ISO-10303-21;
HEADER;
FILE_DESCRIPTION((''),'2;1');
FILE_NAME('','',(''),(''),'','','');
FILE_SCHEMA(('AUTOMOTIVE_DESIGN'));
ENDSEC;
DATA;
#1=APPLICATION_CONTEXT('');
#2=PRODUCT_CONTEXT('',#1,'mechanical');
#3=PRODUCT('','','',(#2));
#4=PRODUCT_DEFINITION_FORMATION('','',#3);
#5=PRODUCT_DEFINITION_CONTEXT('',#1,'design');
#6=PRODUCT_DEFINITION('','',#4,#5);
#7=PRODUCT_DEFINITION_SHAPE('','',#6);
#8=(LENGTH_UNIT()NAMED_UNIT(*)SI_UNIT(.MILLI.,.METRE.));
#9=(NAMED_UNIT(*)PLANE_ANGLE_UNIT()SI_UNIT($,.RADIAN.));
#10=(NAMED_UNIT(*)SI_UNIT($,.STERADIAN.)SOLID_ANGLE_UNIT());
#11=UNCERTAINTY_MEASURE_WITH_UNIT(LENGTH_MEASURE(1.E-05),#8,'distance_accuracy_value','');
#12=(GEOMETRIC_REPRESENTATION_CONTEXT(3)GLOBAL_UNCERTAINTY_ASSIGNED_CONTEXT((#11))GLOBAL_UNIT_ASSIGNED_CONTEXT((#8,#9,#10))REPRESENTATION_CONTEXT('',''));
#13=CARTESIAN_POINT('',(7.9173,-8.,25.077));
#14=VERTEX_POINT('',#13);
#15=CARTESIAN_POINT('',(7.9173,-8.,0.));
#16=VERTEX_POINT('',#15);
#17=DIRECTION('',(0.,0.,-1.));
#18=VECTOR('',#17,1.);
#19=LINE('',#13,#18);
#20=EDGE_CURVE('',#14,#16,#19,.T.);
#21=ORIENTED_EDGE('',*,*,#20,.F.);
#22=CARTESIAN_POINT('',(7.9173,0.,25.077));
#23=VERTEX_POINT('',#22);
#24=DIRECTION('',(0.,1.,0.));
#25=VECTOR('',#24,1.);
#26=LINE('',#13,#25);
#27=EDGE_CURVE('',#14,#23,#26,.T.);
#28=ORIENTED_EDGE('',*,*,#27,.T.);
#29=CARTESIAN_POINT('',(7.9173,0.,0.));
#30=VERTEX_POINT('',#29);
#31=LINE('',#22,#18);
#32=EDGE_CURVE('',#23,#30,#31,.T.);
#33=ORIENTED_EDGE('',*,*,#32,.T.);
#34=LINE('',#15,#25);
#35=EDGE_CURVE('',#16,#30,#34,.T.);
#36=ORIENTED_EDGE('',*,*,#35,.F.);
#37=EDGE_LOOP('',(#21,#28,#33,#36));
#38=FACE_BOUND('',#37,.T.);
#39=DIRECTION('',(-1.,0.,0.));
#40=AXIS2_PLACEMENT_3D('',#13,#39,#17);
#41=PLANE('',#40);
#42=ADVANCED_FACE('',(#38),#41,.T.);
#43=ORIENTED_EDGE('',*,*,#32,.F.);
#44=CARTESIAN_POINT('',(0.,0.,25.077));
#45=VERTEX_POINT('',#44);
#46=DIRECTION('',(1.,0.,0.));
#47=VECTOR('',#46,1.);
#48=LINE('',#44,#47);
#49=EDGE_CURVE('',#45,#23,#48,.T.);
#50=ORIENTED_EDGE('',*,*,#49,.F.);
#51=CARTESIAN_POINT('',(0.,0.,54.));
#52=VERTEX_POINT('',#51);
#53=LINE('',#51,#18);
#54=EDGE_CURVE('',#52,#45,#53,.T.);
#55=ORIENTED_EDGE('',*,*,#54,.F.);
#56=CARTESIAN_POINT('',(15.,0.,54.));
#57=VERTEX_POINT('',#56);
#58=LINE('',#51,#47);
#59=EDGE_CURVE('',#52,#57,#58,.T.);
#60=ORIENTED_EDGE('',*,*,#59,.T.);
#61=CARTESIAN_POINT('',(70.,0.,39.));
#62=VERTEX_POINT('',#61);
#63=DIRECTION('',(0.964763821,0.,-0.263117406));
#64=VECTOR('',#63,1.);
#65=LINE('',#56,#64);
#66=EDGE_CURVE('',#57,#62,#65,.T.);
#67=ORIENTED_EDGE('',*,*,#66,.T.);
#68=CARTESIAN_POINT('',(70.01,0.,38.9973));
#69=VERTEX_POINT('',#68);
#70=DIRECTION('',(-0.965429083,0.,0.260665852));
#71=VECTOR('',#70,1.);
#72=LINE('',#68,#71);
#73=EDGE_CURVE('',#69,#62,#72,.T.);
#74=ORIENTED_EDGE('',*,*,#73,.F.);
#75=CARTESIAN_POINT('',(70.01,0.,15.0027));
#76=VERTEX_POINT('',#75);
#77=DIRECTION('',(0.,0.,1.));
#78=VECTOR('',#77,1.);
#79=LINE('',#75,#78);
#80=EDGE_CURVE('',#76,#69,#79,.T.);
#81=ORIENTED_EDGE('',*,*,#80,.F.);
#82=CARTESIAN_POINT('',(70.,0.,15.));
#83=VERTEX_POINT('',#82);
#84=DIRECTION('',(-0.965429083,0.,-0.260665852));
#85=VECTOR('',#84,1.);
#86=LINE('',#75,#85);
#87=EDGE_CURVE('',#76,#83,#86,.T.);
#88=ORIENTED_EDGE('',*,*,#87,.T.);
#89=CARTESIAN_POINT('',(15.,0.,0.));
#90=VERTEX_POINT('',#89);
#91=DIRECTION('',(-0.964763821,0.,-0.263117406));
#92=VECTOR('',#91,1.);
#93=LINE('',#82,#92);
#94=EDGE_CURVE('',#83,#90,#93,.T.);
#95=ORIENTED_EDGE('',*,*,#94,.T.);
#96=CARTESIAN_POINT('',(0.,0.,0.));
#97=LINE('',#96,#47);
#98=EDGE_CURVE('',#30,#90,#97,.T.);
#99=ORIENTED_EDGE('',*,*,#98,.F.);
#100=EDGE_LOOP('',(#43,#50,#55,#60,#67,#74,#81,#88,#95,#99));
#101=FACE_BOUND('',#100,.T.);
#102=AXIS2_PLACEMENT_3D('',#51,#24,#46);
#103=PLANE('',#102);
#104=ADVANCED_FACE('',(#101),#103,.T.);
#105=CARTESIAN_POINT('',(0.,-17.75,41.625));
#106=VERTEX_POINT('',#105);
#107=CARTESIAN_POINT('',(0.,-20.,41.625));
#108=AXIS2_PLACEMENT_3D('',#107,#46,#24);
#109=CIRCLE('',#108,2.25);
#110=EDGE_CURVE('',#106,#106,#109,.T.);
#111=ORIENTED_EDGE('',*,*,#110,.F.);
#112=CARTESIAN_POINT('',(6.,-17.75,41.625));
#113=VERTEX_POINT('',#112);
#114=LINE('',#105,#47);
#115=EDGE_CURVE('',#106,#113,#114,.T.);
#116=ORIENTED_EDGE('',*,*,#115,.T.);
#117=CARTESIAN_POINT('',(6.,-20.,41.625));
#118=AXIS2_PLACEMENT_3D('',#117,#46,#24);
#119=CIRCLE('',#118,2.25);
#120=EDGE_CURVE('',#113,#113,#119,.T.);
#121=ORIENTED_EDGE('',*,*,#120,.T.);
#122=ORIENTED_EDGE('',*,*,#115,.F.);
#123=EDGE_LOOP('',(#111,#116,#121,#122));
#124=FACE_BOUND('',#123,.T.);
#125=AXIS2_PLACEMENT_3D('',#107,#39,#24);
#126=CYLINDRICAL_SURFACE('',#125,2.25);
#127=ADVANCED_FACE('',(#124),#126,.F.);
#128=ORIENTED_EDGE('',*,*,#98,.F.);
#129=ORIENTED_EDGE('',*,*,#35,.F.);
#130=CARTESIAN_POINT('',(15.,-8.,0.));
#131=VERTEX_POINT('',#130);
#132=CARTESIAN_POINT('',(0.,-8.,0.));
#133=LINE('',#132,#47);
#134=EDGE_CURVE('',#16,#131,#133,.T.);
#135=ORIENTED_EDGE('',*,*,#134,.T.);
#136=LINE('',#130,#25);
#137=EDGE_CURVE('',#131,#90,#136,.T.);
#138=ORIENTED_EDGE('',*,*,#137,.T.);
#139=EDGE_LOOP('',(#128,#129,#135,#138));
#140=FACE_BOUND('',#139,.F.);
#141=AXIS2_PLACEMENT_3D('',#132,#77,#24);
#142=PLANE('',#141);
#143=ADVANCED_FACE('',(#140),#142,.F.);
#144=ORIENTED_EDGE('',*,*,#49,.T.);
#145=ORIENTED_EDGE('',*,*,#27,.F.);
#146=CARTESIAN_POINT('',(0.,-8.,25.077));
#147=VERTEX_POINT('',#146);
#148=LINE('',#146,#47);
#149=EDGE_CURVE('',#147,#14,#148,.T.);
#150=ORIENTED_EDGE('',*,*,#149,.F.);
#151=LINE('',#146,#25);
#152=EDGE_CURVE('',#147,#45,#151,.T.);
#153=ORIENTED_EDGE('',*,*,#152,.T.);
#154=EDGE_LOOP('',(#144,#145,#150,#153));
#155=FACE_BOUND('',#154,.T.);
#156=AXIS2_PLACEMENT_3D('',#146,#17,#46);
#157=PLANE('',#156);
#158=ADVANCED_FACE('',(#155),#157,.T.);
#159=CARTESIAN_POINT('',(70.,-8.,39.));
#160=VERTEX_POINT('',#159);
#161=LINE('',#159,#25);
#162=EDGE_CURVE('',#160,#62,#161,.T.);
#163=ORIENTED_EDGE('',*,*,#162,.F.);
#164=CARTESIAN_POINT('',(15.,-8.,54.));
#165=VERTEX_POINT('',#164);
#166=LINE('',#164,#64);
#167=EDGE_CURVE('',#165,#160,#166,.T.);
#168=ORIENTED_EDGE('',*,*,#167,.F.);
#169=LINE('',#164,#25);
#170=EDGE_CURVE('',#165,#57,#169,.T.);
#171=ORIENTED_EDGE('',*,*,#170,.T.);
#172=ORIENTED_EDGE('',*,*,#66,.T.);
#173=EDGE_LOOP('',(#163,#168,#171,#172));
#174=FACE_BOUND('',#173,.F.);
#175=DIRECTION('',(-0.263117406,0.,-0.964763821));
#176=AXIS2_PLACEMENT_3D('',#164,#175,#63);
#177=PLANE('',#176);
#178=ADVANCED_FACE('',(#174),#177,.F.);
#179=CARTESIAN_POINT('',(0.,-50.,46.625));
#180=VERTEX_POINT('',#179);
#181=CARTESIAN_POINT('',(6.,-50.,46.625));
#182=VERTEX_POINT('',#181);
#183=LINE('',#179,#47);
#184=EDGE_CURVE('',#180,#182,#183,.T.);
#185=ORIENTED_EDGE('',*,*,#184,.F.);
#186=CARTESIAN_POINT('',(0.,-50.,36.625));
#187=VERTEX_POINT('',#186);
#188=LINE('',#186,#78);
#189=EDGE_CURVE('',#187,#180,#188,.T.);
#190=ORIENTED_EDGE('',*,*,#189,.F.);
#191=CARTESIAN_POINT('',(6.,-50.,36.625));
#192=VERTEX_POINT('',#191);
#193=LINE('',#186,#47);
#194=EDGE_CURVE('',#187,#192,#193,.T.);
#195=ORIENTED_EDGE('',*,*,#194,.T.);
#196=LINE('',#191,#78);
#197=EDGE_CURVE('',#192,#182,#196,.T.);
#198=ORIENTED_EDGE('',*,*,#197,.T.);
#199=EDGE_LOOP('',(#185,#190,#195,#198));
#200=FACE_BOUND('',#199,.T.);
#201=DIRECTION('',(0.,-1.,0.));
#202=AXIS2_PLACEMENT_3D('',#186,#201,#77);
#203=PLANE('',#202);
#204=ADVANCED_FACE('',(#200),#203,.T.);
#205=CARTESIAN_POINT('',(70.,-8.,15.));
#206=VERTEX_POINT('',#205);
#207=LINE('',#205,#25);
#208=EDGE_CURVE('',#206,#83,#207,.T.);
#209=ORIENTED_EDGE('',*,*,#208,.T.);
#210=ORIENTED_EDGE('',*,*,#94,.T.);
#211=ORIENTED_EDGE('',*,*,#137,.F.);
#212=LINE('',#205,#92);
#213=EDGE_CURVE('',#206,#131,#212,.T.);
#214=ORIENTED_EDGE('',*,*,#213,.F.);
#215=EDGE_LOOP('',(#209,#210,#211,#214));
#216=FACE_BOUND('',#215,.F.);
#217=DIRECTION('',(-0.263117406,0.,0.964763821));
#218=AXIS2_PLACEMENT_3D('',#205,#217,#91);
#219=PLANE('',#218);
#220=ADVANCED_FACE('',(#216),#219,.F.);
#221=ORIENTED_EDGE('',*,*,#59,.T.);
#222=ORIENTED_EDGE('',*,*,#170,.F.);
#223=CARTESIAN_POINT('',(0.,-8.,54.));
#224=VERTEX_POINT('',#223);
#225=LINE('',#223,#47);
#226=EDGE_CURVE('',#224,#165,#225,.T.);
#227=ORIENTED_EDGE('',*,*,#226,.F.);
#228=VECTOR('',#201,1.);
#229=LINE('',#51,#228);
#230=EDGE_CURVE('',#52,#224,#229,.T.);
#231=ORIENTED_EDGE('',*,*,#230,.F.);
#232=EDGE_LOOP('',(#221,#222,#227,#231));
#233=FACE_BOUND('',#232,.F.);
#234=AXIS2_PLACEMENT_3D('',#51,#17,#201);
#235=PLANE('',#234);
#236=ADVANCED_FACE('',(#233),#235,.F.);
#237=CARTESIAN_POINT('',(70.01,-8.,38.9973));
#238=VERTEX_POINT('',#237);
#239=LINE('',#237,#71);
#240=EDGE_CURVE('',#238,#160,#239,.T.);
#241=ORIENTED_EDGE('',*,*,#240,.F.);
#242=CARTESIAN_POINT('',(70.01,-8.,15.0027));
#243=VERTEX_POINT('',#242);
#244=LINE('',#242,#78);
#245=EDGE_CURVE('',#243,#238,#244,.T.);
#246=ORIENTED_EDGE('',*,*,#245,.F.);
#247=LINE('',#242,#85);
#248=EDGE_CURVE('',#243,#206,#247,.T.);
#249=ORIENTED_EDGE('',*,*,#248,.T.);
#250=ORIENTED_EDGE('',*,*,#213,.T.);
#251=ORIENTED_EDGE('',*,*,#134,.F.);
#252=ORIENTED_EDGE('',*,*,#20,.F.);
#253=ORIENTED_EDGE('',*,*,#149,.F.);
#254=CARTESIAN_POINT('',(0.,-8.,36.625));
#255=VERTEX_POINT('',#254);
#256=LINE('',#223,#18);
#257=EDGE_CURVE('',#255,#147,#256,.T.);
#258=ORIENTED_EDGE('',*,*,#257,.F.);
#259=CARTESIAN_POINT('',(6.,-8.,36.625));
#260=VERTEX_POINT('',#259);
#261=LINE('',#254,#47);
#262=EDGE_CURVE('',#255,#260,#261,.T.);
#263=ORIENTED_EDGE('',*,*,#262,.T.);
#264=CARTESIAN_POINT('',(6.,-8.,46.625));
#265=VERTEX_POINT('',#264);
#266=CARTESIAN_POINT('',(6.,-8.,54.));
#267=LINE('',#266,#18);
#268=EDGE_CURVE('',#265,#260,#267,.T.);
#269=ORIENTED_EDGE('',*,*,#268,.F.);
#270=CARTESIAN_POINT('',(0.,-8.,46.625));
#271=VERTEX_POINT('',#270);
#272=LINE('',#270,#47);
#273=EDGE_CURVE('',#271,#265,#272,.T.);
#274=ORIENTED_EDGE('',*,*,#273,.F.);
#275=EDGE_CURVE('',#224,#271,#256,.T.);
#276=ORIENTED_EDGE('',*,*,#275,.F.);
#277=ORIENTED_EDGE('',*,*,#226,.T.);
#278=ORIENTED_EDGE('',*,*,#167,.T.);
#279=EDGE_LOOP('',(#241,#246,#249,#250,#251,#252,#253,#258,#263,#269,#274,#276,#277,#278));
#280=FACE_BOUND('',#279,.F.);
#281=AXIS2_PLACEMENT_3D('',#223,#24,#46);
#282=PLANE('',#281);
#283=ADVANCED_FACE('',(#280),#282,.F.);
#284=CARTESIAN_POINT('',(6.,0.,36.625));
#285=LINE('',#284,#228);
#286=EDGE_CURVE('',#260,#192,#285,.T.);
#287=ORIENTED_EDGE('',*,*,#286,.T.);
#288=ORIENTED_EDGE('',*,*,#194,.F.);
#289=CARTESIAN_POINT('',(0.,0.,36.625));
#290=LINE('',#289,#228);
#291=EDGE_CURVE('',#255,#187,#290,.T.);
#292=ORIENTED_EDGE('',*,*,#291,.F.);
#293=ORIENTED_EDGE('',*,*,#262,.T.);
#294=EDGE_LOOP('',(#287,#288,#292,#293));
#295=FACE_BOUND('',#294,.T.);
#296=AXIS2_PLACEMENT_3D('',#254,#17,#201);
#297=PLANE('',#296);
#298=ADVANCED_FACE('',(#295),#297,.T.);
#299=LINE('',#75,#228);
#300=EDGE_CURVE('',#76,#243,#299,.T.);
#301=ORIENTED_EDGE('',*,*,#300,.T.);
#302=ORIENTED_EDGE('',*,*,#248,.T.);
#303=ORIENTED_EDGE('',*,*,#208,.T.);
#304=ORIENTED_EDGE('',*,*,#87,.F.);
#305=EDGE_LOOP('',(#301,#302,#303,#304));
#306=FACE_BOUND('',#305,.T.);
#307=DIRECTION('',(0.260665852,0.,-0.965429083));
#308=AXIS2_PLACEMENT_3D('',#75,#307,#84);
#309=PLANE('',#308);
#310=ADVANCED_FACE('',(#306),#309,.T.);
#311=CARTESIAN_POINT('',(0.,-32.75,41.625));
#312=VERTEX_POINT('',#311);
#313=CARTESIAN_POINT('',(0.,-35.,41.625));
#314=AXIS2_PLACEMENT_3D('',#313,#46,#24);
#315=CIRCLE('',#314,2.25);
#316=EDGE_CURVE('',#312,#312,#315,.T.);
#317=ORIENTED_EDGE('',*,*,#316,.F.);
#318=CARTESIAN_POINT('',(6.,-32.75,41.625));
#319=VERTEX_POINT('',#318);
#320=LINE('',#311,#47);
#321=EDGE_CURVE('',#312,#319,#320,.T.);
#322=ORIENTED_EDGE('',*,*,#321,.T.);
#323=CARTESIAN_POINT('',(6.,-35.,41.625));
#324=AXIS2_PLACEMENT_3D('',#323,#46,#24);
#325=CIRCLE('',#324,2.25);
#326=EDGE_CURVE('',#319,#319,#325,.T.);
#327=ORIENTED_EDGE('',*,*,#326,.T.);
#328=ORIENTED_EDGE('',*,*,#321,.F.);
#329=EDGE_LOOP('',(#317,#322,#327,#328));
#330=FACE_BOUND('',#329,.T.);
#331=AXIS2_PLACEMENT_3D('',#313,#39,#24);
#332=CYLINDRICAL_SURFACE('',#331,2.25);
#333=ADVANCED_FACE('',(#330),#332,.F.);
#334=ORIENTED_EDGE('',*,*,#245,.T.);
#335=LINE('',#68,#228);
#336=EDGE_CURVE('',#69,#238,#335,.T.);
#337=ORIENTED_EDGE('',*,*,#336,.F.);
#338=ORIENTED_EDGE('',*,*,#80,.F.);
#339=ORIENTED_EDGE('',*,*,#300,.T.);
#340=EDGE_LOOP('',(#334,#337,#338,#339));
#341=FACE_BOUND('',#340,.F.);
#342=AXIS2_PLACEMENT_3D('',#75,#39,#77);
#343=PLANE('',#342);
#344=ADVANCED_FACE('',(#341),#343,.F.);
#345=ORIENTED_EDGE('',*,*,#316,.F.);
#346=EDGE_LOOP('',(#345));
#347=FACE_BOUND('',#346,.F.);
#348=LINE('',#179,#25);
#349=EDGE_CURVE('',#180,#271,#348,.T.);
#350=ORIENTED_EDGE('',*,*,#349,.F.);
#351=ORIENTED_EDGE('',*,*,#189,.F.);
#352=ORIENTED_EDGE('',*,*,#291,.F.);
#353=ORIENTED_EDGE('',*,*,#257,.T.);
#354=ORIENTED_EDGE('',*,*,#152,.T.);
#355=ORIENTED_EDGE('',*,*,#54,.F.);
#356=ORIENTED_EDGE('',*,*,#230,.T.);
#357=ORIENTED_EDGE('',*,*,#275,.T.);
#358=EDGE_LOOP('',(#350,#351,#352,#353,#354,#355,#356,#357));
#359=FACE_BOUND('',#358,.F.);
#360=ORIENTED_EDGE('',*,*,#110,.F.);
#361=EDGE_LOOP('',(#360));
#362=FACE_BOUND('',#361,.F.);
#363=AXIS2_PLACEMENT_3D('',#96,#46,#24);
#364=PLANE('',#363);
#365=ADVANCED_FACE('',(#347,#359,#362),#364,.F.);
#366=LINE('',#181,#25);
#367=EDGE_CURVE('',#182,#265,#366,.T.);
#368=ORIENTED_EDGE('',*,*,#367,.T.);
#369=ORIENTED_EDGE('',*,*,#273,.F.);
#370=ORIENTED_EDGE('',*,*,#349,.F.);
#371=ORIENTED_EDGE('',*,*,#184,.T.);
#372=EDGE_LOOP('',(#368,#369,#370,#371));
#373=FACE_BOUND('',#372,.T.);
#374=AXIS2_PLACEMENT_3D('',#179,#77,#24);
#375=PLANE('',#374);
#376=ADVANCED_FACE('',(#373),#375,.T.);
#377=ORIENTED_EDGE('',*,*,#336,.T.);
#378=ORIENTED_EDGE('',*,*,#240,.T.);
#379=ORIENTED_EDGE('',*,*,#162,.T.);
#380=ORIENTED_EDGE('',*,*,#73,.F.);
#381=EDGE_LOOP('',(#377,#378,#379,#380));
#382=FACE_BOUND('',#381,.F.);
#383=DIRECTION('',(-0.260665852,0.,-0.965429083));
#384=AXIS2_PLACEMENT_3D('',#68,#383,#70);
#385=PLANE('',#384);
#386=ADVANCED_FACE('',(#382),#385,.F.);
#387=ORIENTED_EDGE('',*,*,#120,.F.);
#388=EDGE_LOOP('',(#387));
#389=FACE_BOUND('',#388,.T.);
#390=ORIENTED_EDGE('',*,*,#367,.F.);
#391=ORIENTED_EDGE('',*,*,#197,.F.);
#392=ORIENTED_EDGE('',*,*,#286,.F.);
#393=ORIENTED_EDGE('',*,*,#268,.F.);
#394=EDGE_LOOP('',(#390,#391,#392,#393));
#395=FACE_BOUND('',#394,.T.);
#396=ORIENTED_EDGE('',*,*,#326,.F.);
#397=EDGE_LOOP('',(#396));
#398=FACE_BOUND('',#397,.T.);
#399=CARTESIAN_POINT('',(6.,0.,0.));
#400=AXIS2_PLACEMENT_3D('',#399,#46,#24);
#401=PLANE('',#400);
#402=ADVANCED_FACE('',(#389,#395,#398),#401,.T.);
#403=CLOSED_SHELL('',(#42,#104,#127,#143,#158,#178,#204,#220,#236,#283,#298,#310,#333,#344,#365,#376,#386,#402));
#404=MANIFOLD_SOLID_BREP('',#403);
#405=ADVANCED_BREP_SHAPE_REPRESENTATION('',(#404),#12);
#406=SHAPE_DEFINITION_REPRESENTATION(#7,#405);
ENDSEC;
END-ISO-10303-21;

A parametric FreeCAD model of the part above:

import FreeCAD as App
import Part
import Sketcher

V = App.Vector
Q = App.Units.Quantity

doc = App.newDocument("Part")
body = doc.addObject("PartDesign::Body", "Body")

# Sketch on YZ plane
sketch1 = doc.addObject("Sketcher::SketchObject", "Sketch")
body.addObject(sketch1)
sketch1.AttachmentSupport = (doc.YZ_Plane, [""])
sketch1.MapMode = "FlatFace"
sketch1.addGeometry([
    Part.LineSegment(V(-8, 46.6, 0), V(-50, 46.6, 0)),  # 0
    Part.LineSegment(V(-50, 46.6, 0), V(-50, 36.6, 0)),  # 1
    Part.LineSegment(V(-50, 36.6, 0), V(-8, 36.6, 0)),  # 2
    Part.LineSegment(V(-8, 36.6, 0), V(-8, 46.6, 0)),  # 3
    Part.Circle(V(-35, 41.6, 0), V(0, 0, 1), 2.2),  # 4
    Part.Circle(V(-20, 41.6, 0), V(0, 0, 1), 2.2),  # 5
], False)
sketch1.addConstraint([
    Sketcher.Constraint("Coincident", 0, 2, 1, 1),
    Sketcher.Constraint("Coincident", 1, 2, 2, 1),
    Sketcher.Constraint("Coincident", 2, 2, 3, 1),
    Sketcher.Constraint("Coincident", 3, 2, 0, 1),
    Sketcher.Constraint("Horizontal", 0),
    Sketcher.Constraint("Vertical", 1),
    Sketcher.Constraint("Horizontal", 2),
    Sketcher.Constraint("Vertical", 3),
    Sketcher.Constraint("Equal", 4, 5),
    Sketcher.Constraint("Horizontal", 4, 3, 5, 3),
    Sketcher.Constraint("Diameter", 4, Q("4.5 mm")),
    Sketcher.Constraint("DistanceY", 1, 2, 1, 1, Q("10 mm")),
    Sketcher.Constraint("DistanceX", 5, 3, -1, 1, Q("20 mm")),
    Sketcher.Constraint("DistanceX", 0, 2, -1, 1, Q("50 mm")),
    Sketcher.Constraint("DistanceX", 2, 2, -1, 1, Q("8 mm")),
    Sketcher.Constraint("DistanceX", 4, 3, 5, 3, Q("15 mm")),
    Sketcher.Constraint("DistanceY", 4, 3, 0, 2, Q("5 mm")),
    Sketcher.Constraint("DistanceY", -1, 1, 4, 3, Q("41.625 mm")),
])
pad1 = doc.addObject("PartDesign::Pad", "Pad")
body.addObject(pad1)
pad1.Profile = sketch1
pad1.Length = 6

# Sketch on YZ plane
sketch2 = doc.addObject("Sketcher::SketchObject", "Sketch001")
body.addObject(sketch2)
sketch2.AttachmentSupport = (doc.YZ_Plane, [""])
sketch2.MapMode = "FlatFace"
sketch2.addGeometry([
    Part.LineSegment(V(-8, 54, 0), V(-8, 0, 0)),
    Part.LineSegment(V(-8, 0, 0), V(0, 0, 0)),
    Part.LineSegment(V(0, 0, 0), V(0, 54, 0)),
    Part.LineSegment(V(0, 54, 0), V(-8, 54, 0)),
], False)
sketch2.addConstraint([
    Sketcher.Constraint("Coincident", 0, 2, 1, 1),
    Sketcher.Constraint("Coincident", 1, 2, 2, 1),
    Sketcher.Constraint("Coincident", 2, 2, 3, 1),
    Sketcher.Constraint("Coincident", 3, 2, 0, 1),
    Sketcher.Constraint("Vertical", 0),
    Sketcher.Constraint("Horizontal", 1),
    Sketcher.Constraint("Vertical", 2),
    Sketcher.Constraint("Horizontal", 3),
    Sketcher.Constraint("Coincident", 1, 2, -1, 1),
    Sketcher.Constraint("DistanceX", 1, 1, 1, 2, Q("8 mm")),
    Sketcher.Constraint("DistanceY", 0, 2, 0, 1, Q("54 mm")),
])
pad2 = doc.addObject("PartDesign::Pad", "Pad001")
body.addObject(pad2)
pad2.Profile = sketch2
pad2.Length = 70

# Sketch on XZ plane
sketch3 = doc.addObject("Sketcher::SketchObject", "Sketch002")
body.addObject(sketch3)
sketch3.AttachmentSupport = (doc.XZ_Plane, [""])
sketch3.MapMode = "FlatFace"
sketch3.AttachmentOffset = App.Placement(V(0, 0, 8), App.Rotation())
sketch3.addGeometry([
    Part.LineSegment(V(15, 0, 0), V(70, 0, 0)),  # 0
    Part.LineSegment(V(70, 0, 0), V(70, 15, 0)),  # 1
    Part.LineSegment(V(70, 15, 0), V(15, 0, 0)),  # 2
    Part.LineSegment(V(0, 0, 0), V(8, 0, 0)),  # 3
    Part.LineSegment(V(8, 0, 0), V(8, 25, 0)),  # 4
    Part.LineSegment(V(8, 25, 0), V(0, 25, 0)),  # 5
    Part.LineSegment(V(0, 25, 0), V(0, 0, 0)),  # 6
    Part.LineSegment(V(15, 54, 0), V(70, 39, 0)),  # 7
    Part.LineSegment(V(70, 39, 0), V(70, 54, 0)),  # 8
    Part.LineSegment(V(70, 54, 0), V(15, 54, 0)),  # 9
], False)
sketch3.addConstraint([
    Sketcher.Constraint("Coincident", 0, 2, 1, 1),
    Sketcher.Constraint("Coincident", 1, 2, 2, 1),
    Sketcher.Constraint("Coincident", 2, 2, 0, 1),
    Sketcher.Constraint("Coincident", 3, 2, 4, 1),
    Sketcher.Constraint("Coincident", 4, 2, 5, 1),
    Sketcher.Constraint("Coincident", 5, 2, 6, 1),
    Sketcher.Constraint("Coincident", 6, 2, 3, 1),
    Sketcher.Constraint("Coincident", 7, 2, 8, 1),
    Sketcher.Constraint("Coincident", 8, 2, 9, 1),
    Sketcher.Constraint("Coincident", 9, 2, 7, 1),
    Sketcher.Constraint("Horizontal", 0),
    Sketcher.Constraint("Vertical", 1),
    Sketcher.Constraint("Horizontal", 3),
    Sketcher.Constraint("Vertical", 4),
    Sketcher.Constraint("Horizontal", 5),
    Sketcher.Constraint("Vertical", 6),
    Sketcher.Constraint("Vertical", 8),
    Sketcher.Constraint("Horizontal", 9),
    Sketcher.Constraint("Coincident", 6, 2, -1, 1),
    Sketcher.Constraint("PointOnObject", 0, 2, -1),
    Sketcher.Constraint("Vertical", 1, 2, 7, 2),
    Sketcher.Constraint("Vertical", 2, 2, 9, 2),
    Sketcher.Constraint("Equal", 1, 8),
    Sketcher.Constraint("DistanceY", 1, 1, 1, 2, Q("15 mm")),
    Sketcher.Constraint("DistanceX", -1, 1, 2, 2, Q("15 mm")),
    Sketcher.Constraint("DistanceX", 0, 1, 0, 2, Q("55 mm")),
    Sketcher.Constraint("DistanceY", -1, 1, 7, 2, Q("39 mm")),
    Sketcher.Constraint("DistanceY", 4, 1, 4, 2, Q("25.077 mm")),
    Sketcher.Constraint("DistanceX", 3, 1, 3, 2, Q("7.9173 mm")),
])
pocket1 = doc.addObject("PartDesign::Pocket", "Pocket")
body.addObject(pocket1)
pocket1.Profile = sketch3
pocket1.Length = 8

# Sketch on XZ plane
sketch4 = doc.addObject("Sketcher::SketchObject", "Sketch003")
body.addObject(sketch4)
sketch4.AttachmentSupport = (doc.XZ_Plane, [""])
sketch4.MapMode = "FlatFace"
sketch4.addGeometry([
    Part.LineSegment(V(70.01, 38.997, 0), V(70.01, 15.003, 0)),
    Part.LineSegment(V(70.01, 15.003, 0), V(70, 15, 0)),
    Part.LineSegment(V(70, 15, 0), V(70, 39, 0)),
    Part.LineSegment(V(70, 39, 0), V(70.01, 38.997, 0)),
], False)
sketch4.addConstraint([
    Sketcher.Constraint("Coincident", 0, 2, 1, 1),
    Sketcher.Constraint("Coincident", 1, 2, 2, 1),
    Sketcher.Constraint("Coincident", 2, 2, 3, 1),
    Sketcher.Constraint("Coincident", 3, 2, 0, 1),
    Sketcher.Constraint("Vertical", 0),
    Sketcher.Constraint("Vertical", 2),
    Sketcher.Constraint("Equal", 1, 3),
    Sketcher.Constraint("DistanceY", 2, 1, 2, 2, Q("24 mm")),
    Sketcher.Constraint("DistanceX", 1, 2, 0, 2, Q("0.01 mm")),
    Sketcher.Constraint("DistanceX", -1, 1, 1, 2, Q("70 mm")),
    Sketcher.Constraint("DistanceY", -1, 1, 1, 2, Q("15 mm")),
    Sketcher.Constraint("Distance", 1, Q("0.0104 mm")),
])
pad3 = doc.addObject("PartDesign::Pad", "Pad002")
body.addObject(pad3)
pad3.Profile = sketch4
pad3.Length = 8

doc.recompute()
